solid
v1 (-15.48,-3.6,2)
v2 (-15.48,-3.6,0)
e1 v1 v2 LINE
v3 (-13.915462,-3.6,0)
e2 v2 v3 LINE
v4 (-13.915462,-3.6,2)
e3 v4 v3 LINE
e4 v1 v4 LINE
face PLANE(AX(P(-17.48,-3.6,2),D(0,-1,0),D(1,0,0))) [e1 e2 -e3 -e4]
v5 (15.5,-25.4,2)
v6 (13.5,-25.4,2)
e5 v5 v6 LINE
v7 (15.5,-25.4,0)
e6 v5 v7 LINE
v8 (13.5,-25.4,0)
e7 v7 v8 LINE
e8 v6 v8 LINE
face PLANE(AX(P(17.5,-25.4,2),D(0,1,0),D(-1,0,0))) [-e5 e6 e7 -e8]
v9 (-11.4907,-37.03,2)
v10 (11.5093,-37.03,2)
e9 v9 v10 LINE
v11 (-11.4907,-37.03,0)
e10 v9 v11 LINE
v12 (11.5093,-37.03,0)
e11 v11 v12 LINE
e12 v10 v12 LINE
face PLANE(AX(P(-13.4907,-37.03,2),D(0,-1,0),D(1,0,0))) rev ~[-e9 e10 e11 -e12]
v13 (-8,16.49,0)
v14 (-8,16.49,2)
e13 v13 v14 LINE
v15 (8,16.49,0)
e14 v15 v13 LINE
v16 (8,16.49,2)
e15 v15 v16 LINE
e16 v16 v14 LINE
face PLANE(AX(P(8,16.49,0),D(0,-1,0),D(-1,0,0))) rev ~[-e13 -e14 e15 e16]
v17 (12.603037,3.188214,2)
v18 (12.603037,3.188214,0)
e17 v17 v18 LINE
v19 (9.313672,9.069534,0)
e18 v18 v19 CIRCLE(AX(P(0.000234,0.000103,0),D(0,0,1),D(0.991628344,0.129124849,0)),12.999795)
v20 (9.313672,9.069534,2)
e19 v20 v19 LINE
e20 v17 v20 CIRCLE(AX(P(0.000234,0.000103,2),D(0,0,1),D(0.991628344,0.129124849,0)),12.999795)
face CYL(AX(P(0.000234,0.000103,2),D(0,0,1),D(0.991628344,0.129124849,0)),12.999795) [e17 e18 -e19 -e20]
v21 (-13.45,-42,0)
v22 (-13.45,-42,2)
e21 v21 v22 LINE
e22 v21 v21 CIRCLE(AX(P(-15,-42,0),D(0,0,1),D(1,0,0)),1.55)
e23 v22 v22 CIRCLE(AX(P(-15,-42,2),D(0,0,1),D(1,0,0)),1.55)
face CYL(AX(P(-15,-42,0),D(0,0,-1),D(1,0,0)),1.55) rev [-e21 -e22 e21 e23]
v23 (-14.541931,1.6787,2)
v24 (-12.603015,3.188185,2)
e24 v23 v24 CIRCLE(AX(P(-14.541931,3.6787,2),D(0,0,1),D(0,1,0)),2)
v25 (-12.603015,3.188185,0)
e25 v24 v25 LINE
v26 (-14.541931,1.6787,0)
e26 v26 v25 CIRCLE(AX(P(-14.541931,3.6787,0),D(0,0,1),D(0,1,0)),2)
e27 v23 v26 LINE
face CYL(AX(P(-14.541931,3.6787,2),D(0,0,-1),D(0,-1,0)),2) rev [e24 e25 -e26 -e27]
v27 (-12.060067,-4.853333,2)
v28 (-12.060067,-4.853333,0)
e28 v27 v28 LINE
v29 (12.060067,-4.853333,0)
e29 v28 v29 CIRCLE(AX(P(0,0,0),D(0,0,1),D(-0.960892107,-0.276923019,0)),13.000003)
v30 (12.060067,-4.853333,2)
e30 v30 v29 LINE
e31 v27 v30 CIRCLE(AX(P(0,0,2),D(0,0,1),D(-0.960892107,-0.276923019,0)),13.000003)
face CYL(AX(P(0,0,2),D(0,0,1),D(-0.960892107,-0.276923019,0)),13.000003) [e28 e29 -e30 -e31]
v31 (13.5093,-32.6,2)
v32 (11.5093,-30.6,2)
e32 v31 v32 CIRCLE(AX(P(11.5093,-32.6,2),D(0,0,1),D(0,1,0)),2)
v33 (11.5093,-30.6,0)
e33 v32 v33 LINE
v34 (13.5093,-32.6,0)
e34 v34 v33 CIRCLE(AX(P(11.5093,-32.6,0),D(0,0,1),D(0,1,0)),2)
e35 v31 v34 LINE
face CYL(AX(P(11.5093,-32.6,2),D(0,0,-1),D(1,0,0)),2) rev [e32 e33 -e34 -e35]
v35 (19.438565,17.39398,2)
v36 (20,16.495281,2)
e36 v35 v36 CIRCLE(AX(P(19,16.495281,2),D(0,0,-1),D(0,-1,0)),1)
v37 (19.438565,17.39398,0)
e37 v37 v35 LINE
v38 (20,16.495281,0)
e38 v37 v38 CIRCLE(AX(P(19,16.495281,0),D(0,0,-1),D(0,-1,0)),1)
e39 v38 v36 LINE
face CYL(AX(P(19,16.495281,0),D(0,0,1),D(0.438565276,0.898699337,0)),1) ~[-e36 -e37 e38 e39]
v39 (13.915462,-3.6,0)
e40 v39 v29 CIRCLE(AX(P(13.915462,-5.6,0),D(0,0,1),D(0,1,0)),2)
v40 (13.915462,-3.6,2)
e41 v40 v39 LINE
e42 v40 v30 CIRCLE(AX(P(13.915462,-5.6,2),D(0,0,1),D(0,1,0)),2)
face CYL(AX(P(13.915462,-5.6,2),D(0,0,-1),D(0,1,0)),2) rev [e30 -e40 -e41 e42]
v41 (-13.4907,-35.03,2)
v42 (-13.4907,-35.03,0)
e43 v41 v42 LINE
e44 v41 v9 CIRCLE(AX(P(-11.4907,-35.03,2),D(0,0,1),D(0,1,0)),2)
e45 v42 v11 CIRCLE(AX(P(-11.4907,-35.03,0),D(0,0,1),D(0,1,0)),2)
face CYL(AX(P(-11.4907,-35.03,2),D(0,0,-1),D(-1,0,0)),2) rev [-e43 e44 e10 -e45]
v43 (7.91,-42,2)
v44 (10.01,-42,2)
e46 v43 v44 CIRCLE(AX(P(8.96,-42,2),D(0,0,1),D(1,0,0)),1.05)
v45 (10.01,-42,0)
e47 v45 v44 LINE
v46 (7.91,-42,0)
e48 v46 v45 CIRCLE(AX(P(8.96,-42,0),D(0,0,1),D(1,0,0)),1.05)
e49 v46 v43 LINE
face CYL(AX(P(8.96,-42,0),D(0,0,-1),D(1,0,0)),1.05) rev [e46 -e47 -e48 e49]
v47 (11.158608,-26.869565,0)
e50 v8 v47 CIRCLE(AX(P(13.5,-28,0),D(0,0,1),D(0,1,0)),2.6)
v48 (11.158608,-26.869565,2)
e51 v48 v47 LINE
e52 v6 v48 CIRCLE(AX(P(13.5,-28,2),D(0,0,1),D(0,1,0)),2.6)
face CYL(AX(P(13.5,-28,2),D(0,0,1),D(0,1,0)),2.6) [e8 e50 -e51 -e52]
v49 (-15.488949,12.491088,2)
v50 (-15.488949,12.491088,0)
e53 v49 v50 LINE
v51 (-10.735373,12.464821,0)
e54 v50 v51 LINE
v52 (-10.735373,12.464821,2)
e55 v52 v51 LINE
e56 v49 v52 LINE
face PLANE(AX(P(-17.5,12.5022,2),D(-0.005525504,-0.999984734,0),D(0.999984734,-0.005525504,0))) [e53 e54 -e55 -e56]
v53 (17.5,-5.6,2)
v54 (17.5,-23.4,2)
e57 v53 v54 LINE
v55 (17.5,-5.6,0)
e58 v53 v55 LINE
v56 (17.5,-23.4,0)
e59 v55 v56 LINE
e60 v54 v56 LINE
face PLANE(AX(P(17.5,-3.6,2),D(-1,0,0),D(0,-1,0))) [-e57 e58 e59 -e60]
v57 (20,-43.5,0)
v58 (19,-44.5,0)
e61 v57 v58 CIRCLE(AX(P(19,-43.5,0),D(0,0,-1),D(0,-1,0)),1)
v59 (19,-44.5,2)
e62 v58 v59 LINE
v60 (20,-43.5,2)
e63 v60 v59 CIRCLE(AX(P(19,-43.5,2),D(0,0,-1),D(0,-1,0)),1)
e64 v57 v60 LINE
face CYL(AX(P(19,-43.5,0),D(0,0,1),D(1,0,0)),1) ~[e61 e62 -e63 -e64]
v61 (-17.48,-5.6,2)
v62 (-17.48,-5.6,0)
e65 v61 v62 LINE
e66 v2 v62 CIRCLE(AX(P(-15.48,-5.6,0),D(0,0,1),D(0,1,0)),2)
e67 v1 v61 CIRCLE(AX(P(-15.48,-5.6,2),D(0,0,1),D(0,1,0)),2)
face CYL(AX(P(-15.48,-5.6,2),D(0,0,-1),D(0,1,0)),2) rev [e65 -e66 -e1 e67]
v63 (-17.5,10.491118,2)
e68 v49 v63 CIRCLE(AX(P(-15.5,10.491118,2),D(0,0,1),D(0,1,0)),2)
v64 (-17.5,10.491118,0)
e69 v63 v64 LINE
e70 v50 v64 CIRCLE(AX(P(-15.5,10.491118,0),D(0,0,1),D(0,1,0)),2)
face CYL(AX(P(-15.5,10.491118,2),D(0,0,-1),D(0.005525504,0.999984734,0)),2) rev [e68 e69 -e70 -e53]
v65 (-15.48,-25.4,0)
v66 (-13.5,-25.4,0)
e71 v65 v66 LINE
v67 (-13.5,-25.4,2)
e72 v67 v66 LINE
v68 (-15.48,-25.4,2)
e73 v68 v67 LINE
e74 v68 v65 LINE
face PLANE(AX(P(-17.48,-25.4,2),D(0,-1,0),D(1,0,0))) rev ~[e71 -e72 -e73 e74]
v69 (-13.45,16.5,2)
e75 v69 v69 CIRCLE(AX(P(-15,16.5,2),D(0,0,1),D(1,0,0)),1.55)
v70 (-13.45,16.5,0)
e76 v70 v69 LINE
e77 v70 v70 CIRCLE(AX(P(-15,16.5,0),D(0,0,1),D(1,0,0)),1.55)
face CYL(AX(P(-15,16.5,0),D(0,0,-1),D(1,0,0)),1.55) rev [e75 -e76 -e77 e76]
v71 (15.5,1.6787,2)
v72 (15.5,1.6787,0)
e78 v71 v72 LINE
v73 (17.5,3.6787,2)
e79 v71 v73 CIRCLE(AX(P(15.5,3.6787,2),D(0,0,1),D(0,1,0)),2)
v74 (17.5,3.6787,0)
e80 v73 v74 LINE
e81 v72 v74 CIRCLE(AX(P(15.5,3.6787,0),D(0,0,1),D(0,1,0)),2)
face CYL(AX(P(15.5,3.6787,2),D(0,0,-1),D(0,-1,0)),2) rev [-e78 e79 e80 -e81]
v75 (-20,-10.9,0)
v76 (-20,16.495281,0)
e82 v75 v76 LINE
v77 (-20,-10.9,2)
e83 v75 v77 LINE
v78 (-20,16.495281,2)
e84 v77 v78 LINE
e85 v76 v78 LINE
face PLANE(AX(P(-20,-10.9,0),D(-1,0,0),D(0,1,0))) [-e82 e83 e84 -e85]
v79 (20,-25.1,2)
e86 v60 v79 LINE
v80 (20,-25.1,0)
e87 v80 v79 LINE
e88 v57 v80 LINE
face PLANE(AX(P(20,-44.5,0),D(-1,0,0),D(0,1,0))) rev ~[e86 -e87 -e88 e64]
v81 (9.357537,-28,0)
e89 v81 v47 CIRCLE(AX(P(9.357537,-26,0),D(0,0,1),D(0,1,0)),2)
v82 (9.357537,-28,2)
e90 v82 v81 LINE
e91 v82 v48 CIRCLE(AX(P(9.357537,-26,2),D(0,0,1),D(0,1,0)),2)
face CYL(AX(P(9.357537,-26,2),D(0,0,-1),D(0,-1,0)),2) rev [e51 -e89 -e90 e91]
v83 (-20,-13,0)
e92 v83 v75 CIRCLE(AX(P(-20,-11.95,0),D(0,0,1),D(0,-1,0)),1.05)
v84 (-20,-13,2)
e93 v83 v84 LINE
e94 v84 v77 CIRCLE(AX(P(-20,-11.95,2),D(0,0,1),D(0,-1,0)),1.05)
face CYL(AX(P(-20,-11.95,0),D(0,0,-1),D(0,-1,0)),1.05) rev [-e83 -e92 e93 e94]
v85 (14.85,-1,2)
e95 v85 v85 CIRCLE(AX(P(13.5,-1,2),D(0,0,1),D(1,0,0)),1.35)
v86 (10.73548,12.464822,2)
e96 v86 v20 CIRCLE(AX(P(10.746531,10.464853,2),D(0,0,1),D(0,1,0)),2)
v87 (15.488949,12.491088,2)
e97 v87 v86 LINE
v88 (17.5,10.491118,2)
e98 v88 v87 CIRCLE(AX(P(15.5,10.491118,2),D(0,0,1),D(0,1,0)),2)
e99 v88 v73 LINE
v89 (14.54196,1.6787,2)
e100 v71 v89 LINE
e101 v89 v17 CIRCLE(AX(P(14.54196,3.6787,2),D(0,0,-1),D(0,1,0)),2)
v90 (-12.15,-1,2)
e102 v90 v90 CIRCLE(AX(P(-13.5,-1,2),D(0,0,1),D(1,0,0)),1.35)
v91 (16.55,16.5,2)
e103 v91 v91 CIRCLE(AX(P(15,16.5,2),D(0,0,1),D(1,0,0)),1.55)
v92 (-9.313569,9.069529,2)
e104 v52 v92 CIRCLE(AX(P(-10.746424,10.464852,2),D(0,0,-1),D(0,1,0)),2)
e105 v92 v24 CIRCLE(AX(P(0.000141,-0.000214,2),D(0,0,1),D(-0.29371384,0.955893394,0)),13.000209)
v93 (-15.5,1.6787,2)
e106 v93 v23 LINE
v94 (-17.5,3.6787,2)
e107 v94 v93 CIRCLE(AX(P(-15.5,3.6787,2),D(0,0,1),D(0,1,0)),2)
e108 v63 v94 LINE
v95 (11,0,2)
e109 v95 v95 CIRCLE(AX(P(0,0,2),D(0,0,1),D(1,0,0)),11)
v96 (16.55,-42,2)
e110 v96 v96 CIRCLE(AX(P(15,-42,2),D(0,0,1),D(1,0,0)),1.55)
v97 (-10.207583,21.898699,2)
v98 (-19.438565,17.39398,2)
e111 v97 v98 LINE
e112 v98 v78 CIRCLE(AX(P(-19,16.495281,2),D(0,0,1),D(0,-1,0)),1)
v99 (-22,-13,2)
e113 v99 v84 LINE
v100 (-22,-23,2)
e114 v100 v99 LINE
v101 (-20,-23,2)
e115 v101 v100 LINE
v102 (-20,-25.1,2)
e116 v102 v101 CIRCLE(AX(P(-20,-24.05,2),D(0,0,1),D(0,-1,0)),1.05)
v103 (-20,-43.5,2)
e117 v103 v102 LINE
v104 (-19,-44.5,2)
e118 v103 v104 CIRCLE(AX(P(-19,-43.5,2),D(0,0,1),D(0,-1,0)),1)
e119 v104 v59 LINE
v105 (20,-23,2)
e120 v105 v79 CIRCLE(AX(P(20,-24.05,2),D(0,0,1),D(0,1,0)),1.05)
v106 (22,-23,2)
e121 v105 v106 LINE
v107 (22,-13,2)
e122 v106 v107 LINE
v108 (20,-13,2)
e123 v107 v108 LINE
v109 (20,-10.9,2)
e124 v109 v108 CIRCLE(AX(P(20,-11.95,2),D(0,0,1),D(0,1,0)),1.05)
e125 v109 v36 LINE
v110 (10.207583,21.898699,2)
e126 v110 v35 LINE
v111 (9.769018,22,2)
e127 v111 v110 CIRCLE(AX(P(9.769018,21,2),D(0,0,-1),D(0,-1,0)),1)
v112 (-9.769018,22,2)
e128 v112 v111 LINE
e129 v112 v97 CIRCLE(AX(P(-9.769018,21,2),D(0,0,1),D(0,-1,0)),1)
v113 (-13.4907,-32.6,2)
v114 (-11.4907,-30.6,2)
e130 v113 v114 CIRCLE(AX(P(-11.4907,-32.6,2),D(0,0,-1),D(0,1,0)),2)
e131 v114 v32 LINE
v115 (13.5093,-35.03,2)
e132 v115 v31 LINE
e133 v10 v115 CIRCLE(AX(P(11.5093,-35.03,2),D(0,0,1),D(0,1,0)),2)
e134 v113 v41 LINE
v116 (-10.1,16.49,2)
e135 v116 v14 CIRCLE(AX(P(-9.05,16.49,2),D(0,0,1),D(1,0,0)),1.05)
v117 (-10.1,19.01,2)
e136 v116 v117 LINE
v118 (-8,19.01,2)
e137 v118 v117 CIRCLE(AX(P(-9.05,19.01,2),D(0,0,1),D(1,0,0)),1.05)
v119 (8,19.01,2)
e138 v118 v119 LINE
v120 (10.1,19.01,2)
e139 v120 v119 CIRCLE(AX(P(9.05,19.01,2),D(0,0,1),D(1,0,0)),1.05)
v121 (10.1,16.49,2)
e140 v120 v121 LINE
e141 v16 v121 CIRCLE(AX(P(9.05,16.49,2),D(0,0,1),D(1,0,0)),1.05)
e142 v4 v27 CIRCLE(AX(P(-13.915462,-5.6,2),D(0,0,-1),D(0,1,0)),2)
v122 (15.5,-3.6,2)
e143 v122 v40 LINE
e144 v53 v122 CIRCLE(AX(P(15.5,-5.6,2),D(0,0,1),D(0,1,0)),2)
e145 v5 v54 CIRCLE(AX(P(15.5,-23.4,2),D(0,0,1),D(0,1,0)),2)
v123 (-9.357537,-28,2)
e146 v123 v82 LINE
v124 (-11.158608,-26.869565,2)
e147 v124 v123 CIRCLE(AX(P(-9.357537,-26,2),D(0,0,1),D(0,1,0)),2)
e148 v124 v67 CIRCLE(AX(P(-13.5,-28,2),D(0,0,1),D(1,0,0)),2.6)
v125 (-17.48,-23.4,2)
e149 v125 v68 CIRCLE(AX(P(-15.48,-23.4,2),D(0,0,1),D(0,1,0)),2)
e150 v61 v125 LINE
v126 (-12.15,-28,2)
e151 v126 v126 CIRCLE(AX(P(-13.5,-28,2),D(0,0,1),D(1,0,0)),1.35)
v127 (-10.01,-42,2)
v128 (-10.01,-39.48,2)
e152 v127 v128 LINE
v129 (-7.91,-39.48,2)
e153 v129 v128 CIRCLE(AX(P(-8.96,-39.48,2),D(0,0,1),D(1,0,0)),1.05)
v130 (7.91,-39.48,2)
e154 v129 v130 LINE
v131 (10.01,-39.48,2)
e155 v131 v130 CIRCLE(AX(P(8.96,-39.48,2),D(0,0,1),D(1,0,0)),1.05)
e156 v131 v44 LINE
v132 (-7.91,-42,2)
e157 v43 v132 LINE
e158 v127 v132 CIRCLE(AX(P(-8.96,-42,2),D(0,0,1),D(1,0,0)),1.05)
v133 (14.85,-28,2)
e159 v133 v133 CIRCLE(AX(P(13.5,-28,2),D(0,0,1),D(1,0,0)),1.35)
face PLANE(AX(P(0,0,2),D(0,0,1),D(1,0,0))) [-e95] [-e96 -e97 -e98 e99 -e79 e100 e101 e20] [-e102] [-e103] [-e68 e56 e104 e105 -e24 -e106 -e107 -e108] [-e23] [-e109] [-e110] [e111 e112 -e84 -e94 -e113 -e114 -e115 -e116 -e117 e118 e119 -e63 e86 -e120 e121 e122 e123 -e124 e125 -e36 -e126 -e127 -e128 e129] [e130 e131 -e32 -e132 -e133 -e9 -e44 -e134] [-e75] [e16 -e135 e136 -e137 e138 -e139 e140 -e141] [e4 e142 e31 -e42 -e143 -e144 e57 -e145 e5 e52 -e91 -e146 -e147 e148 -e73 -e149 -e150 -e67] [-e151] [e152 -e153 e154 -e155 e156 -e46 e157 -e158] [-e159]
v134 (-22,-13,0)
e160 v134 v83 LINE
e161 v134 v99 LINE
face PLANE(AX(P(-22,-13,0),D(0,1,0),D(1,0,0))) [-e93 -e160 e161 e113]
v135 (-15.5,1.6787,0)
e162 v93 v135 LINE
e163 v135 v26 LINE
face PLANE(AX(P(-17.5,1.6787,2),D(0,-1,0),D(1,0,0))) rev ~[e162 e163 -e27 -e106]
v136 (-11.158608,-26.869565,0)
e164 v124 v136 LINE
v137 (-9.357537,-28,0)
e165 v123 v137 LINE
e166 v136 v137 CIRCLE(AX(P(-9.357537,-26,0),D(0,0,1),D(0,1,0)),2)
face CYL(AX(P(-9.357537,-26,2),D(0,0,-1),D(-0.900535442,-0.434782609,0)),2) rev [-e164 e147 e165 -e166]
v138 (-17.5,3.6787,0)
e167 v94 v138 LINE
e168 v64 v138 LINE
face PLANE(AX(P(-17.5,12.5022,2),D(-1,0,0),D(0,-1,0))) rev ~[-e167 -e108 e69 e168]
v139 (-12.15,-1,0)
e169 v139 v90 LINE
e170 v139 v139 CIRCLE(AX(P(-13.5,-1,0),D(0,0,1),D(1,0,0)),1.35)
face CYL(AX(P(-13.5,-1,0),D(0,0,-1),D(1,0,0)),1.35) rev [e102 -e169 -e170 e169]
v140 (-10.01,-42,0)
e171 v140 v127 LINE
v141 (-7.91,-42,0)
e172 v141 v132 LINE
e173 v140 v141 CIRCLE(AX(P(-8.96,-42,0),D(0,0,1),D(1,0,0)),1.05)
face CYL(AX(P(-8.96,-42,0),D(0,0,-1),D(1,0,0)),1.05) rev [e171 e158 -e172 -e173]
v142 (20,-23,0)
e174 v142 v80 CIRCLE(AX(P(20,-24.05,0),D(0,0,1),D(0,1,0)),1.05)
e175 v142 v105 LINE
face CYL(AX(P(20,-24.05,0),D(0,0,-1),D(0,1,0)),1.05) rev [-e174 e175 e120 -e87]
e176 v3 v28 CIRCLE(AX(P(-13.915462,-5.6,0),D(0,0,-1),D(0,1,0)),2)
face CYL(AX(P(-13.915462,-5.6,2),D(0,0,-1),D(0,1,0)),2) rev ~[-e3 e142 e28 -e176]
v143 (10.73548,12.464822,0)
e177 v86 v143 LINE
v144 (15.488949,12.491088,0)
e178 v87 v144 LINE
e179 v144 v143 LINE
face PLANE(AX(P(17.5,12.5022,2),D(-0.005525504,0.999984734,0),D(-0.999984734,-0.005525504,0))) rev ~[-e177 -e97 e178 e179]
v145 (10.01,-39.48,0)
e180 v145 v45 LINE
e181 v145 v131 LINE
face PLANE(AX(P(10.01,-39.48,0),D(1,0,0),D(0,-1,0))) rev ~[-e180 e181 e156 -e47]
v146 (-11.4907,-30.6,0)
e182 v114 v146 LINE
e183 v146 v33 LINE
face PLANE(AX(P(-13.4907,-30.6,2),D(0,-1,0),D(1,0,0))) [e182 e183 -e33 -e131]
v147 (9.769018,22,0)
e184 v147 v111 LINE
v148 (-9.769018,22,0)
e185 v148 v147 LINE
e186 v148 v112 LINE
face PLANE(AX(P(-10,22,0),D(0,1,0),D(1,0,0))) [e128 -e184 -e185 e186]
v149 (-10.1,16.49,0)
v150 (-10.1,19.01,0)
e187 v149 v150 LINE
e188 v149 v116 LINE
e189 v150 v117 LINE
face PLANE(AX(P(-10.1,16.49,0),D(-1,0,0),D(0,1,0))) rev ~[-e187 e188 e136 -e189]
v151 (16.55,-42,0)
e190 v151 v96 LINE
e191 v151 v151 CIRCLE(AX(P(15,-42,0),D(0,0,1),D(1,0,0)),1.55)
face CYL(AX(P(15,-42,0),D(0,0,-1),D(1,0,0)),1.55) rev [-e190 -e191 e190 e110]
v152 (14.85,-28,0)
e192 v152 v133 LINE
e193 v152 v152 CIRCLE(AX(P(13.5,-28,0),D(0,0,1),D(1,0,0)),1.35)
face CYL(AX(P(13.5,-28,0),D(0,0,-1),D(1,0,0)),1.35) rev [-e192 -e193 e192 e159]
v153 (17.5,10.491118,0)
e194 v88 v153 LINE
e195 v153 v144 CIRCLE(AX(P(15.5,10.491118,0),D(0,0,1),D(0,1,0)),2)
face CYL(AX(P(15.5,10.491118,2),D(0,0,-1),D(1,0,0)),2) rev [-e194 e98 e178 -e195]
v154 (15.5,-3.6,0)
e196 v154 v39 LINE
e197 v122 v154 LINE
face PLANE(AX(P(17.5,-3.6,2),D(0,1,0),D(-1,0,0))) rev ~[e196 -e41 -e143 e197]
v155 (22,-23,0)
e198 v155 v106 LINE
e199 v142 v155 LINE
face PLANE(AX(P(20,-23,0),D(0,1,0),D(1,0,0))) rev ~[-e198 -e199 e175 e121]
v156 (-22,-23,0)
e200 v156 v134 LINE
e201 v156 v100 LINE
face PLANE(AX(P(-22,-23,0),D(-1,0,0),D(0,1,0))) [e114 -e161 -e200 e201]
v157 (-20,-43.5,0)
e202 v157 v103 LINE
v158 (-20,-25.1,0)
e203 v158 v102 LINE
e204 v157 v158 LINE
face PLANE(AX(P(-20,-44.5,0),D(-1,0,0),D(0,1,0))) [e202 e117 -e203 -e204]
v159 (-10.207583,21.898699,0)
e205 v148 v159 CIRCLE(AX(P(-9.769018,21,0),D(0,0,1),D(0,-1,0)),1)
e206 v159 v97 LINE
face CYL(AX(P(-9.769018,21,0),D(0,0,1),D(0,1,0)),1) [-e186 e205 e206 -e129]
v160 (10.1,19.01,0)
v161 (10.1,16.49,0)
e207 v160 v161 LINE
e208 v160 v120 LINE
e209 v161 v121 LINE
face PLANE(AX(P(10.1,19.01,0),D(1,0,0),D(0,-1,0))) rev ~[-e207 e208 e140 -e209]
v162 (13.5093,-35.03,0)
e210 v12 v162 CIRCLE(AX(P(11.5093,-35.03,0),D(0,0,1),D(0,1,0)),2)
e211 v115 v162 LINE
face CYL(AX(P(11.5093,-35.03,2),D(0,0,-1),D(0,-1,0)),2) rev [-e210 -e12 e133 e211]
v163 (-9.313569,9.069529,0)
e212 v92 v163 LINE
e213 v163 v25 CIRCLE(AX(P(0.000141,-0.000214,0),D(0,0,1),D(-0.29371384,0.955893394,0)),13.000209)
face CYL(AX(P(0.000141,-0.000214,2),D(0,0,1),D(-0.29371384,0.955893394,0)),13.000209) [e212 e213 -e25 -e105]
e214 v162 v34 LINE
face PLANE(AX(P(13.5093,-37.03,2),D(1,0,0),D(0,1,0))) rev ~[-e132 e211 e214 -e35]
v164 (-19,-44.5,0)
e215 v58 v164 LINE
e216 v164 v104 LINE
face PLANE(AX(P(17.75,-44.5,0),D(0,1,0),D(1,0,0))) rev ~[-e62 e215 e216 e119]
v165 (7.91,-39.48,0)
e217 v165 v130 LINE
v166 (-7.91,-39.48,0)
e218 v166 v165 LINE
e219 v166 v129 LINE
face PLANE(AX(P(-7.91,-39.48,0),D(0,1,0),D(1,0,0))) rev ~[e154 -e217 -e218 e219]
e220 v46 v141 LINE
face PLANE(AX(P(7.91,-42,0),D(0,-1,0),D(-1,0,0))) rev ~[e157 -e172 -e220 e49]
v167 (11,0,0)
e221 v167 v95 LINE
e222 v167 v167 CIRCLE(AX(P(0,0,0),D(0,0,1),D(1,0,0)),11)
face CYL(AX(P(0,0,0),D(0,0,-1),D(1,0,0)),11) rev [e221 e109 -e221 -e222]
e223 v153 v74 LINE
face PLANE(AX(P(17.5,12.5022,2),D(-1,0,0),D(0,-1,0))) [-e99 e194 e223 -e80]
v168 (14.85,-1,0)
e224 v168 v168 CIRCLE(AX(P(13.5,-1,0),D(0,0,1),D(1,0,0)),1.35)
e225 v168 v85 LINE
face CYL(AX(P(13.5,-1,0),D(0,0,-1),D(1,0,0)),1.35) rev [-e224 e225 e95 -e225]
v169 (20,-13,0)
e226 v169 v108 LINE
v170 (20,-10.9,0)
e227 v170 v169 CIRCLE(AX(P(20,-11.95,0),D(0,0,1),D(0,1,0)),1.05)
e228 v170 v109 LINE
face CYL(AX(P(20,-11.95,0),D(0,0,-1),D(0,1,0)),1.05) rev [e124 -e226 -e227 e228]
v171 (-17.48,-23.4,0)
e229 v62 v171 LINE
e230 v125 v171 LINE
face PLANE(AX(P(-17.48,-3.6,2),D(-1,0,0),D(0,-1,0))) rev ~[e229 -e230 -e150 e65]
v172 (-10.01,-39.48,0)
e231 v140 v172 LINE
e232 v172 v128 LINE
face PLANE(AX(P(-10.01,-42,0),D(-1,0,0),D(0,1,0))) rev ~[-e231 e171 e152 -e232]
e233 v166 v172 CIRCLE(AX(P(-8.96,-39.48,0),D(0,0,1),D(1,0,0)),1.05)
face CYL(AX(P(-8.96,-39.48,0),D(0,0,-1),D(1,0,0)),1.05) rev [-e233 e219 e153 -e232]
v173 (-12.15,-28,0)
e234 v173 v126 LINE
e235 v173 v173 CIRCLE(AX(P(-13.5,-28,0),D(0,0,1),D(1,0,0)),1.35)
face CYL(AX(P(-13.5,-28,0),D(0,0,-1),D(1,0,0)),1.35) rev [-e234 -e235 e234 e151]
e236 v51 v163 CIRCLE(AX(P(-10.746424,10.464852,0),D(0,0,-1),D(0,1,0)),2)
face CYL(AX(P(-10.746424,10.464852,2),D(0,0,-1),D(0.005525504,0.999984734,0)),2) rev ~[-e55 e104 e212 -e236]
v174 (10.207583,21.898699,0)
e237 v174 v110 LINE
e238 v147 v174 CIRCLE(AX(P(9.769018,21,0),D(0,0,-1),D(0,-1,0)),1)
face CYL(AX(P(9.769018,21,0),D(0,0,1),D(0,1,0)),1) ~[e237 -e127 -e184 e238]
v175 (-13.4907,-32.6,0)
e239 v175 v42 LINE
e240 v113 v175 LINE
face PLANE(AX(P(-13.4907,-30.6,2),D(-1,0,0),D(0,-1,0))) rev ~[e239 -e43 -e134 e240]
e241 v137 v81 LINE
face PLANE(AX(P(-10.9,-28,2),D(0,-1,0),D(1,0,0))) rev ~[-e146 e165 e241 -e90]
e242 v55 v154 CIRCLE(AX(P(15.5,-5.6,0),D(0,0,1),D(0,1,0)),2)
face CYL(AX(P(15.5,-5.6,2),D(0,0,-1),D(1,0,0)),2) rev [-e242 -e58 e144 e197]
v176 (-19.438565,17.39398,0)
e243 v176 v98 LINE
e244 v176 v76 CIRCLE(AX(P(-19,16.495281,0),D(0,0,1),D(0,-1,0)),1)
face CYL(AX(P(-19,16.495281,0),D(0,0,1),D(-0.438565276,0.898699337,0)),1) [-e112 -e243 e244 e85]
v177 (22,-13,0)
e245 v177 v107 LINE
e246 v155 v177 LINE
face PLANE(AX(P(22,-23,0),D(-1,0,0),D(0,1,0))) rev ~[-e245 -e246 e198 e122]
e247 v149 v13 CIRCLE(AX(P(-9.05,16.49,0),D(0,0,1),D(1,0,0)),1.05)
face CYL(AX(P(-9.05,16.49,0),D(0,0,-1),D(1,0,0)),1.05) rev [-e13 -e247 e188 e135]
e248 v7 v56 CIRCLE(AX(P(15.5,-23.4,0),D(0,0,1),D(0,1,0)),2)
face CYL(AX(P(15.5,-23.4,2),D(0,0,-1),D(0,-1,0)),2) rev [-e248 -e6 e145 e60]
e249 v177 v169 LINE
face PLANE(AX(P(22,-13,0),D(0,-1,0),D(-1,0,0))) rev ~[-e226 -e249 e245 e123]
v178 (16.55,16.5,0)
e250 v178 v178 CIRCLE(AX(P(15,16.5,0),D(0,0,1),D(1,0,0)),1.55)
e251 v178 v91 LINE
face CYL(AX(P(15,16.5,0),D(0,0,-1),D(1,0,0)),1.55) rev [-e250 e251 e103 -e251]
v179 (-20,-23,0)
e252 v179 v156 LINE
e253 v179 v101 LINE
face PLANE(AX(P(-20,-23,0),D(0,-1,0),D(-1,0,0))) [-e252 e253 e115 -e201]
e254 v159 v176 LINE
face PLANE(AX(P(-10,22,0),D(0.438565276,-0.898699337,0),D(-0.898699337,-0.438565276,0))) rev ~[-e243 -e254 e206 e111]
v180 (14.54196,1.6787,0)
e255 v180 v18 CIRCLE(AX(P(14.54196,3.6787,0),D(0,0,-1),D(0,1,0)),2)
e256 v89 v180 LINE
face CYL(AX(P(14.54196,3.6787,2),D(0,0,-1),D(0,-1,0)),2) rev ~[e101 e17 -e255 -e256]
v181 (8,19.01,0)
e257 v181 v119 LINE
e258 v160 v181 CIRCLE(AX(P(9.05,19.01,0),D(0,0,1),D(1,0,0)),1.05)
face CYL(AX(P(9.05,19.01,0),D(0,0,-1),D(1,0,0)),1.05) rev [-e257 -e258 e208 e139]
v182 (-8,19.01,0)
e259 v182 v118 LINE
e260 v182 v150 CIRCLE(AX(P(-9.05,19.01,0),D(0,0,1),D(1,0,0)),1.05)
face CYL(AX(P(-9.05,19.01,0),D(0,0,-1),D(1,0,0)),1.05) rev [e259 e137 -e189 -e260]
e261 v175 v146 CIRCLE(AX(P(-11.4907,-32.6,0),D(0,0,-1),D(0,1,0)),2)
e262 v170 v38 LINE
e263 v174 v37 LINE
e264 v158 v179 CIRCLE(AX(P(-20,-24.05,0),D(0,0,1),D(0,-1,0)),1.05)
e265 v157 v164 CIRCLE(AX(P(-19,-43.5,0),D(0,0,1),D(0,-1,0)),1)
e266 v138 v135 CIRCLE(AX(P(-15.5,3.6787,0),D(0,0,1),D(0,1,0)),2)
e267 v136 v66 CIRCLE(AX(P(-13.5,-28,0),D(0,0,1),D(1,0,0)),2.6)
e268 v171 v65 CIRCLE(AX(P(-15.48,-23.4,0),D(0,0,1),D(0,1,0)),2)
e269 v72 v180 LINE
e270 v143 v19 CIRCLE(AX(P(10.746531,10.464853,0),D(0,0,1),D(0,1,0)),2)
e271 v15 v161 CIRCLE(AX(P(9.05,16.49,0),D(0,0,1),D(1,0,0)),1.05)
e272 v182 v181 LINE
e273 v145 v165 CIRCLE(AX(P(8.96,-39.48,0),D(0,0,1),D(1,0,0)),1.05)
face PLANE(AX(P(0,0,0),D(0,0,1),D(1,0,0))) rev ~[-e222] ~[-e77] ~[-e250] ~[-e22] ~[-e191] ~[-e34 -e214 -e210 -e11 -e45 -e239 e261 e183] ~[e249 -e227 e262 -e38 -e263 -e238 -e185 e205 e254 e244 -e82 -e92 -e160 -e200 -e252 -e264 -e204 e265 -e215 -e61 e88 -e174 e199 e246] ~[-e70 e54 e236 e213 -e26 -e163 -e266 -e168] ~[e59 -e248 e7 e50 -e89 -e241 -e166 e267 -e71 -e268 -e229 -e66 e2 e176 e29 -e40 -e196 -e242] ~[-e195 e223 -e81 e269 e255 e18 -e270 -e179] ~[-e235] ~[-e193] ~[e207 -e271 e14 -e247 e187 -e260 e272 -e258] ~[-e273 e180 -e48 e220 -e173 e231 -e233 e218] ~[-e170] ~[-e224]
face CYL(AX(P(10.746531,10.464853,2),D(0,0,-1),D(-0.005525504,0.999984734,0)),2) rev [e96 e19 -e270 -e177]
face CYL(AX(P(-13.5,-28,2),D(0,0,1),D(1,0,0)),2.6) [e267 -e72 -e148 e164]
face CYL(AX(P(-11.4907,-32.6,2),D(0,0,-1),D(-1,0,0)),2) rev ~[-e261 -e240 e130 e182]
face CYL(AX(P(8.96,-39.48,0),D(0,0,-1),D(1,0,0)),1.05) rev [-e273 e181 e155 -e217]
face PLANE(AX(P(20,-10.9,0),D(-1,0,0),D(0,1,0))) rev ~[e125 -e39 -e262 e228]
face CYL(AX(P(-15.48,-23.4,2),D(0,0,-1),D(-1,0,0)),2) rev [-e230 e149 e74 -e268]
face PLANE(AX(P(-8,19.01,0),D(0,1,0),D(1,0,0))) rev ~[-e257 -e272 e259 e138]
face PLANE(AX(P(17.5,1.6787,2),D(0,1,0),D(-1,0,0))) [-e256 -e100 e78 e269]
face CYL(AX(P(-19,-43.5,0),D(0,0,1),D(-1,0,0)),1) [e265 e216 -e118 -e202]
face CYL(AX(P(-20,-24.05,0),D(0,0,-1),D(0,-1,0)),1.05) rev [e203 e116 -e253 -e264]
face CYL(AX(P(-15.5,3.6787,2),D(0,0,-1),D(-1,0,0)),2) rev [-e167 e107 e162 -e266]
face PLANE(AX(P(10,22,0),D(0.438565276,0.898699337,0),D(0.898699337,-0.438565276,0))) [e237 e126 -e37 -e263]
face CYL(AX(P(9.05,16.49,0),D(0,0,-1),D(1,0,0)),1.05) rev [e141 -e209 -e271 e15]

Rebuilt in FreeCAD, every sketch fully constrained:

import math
import FreeCAD as App
import Part
import Sketcher
from FreeCAD import Vector


def edges_at(feature, points):
    """Names of the edges that pass closest to the given points."""
    edges = feature.Shape.Edges
    near = lambda p: min(range(len(edges)), key=lambda i: edges[i].distToShape(Part.Vertex(*p))[0])
    return sorted({f"Edge{near(p) + 1}" for p in points})


def add_polygon(sketch, points):
    """Adds a closed chain of lines whose ends are joined by coincident constraints."""
    first, n = sketch.GeometryCount, len(points)
    for a, b in zip(points, points[1:] + points[:1]):
        sketch.addGeometry(Part.LineSegment(App.Vector(*a, 0), App.Vector(*b, 0)), False)
    for i in range(n):
        sketch.addConstraint(Sketcher.Constraint("Coincident", first + i, 2, first + (i + 1) % n, 1))

doc = App.newDocument("Part")
body = doc.addObject("PartDesign::Body", "Body")

sketch1 = body.newObject("Sketcher::SketchObject", "Sketch")
sketch1.AttachmentSupport = (doc.getObject("XY_Plane"), [""])
sketch1.MapMode = "FlatFace"
sketch1.addGeometry(Part.LineSegment(Vector(10, 22, 0), Vector(-10, 22, 0)), False)
sketch1.addGeometry(Part.LineSegment(Vector(-10, 22, 0), Vector(-20, 17.12, 0)), False)
sketch1.addGeometry(Part.LineSegment(Vector(-20, 17.12, 0), Vector(-20, -10.9, 0)), False)
sketch1.addGeometry(Part.ArcOfCircle(Part.Circle(Vector(-20, -11.95, 0), Vector(0, 0, 1), 1.05), math.radians(-90), math.radians(90)), False)
sketch1.addGeometry(Part.LineSegment(Vector(-20, -13, 0), Vector(-22, -13, 0)), False)
sketch1.addGeometry(Part.LineSegment(Vector(-22, -13, 0), Vector(-22, -23, 0)), False)
sketch1.addGeometry(Part.LineSegment(Vector(-22, -23, 0), Vector(-20, -23, 0)), False)
sketch1.addGeometry(Part.ArcOfCircle(Part.Circle(Vector(-20, -24.05, 0), Vector(0, 0, 1), 1.05), math.radians(-90), math.radians(90)), False)
sketch1.addGeometry(Part.LineSegment(Vector(-20, -25.1, 0), Vector(-20, -44.5, 0)), False)
sketch1.addGeometry(Part.LineSegment(Vector(-20, -44.5, 0), Vector(20, -44.5, 0)), False)
sketch1.addGeometry(Part.LineSegment(Vector(20, -44.5, 0), Vector(20, -25.1, 0)), False)
sketch1.addGeometry(Part.ArcOfCircle(Part.Circle(Vector(20, -24.05, 0), Vector(0, 0, 1), 1.05), math.radians(90), math.radians(270)), False)
sketch1.addGeometry(Part.LineSegment(Vector(20, -23, 0), Vector(22, -23, 0)), False)
sketch1.addGeometry(Part.LineSegment(Vector(22, -23, 0), Vector(22, -13, 0)), False)
sketch1.addGeometry(Part.LineSegment(Vector(22, -13, 0), Vector(20, -13, 0)), False)
sketch1.addGeometry(Part.ArcOfCircle(Part.Circle(Vector(20, -11.95, 0), Vector(0, 0, 1), 1.05), math.radians(90), math.radians(270)), False)
sketch1.addGeometry(Part.LineSegment(Vector(20, -10.9, 0), Vector(20, 17.12, 0)), False)
sketch1.addGeometry(Part.LineSegment(Vector(20, 17.12, 0), Vector(10, 22, 0)), False)
sketch1.addGeometry(Part.Circle(Vector(-15, -42, 0), Vector(0, 0, 1), 1.55), False)
sketch1.addGeometry(Part.Circle(Vector(-13.5, -28, 0), Vector(0, 0, 1), 1.35), False)
sketch1.addGeometry(Part.LineSegment(Vector(7.91, -42, 0), Vector(-7.91, -42, 0)), False)
sketch1.addGeometry(Part.ArcOfCircle(Part.Circle(Vector(-8.96, -42, 0), Vector(0, 0, 1), 1.05), math.radians(180), math.radians(360)), False)
sketch1.addGeometry(Part.LineSegment(Vector(-10.01, -42, 0), Vector(-10.01, -39.48, 0)), False)
sketch1.addGeometry(Part.ArcOfCircle(Part.Circle(Vector(-8.96, -39.48, 0), Vector(0, 0, 1), 1.05), math.radians(0), math.radians(180)), False)
sketch1.addGeometry(Part.LineSegment(Vector(-7.91, -39.48, 0), Vector(7.91, -39.48, 0)), False)
sketch1.addGeometry(Part.ArcOfCircle(Part.Circle(Vector(8.96, -39.48, 0), Vector(0, 0, 1), 1.05), math.radians(0), math.radians(180)), False)
sketch1.addGeometry(Part.LineSegment(Vector(10.01, -39.48, 0), Vector(10.01, -42, 0)), False)
sketch1.addGeometry(Part.ArcOfCircle(Part.Circle(Vector(8.96, -42, 0), Vector(0, 0, 1), 1.05), math.radians(180), math.radians(360)), False)
sketch1.addGeometry(Part.Circle(Vector(15, -42, 0), Vector(0, 0, 1), 1.55), False)
sketch1.addGeometry(Part.Circle(Vector(13.5, -28, 0), Vector(0, 0, 1), 1.35), False)
sketch1.addGeometry(Part.Circle(Vector(-13.5, -1, 0), Vector(0, 0, 1), 1.35), False)
sketch1.addGeometry(Part.Circle(Vector(-15, 16.5, 0), Vector(0, 0, 1), 1.55), False)
sketch1.addGeometry(Part.Circle(Vector(0, 0, 0), Vector(0, 0, 1), 11), False)
sketch1.addGeometry(Part.Circle(Vector(13.5, -1, 0), Vector(0, 0, 1), 1.35), False)
sketch1.addGeometry(Part.LineSegment(Vector(-10.1, 16.49, 0), Vector(-10.1, 19.01, 0)), False)
sketch1.addGeometry(Part.ArcOfCircle(Part.Circle(Vector(-9.05, 19.01, 0), Vector(0, 0, 1), 1.05), math.radians(0), math.radians(180)), False)
sketch1.addGeometry(Part.LineSegment(Vector(-8, 19.01, 0), Vector(8, 19.01, 0)), False)
sketch1.addGeometry(Part.ArcOfCircle(Part.Circle(Vector(9.05, 19.01, 0), Vector(0, 0, 1), 1.05), math.radians(0), math.radians(180)), False)
sketch1.addGeometry(Part.LineSegment(Vector(10.1, 19.01, 0), Vector(10.1, 16.49, 0)), False)
sketch1.addGeometry(Part.ArcOfCircle(Part.Circle(Vector(9.05, 16.49, 0), Vector(0, 0, 1), 1.05), math.radians(180), math.radians(360)), False)
sketch1.addGeometry(Part.LineSegment(Vector(8, 16.49, 0), Vector(-8, 16.49, 0)), False)
sketch1.addGeometry(Part.ArcOfCircle(Part.Circle(Vector(-9.05, 16.49, 0), Vector(0, 0, 1), 1.05), math.radians(180), math.radians(360)), False)
sketch1.addGeometry(Part.Circle(Vector(15, 16.5, 0), Vector(0, 0, 1), 1.55), False)
sketch1.addConstraint(Sketcher.Constraint("Coincident", 0, 2, 1, 1))
sketch1.addConstraint(Sketcher.Constraint("Coincident", 1, 2, 2, 1))
sketch1.addConstraint(Sketcher.Constraint("Coincident", 2, 2, 3, 2))
sketch1.addConstraint(Sketcher.Constraint("Tangent", 3, 1, 4, 1))
sketch1.addConstraint(Sketcher.Constraint("Coincident", 4, 2, 5, 1))
sketch1.addConstraint(Sketcher.Constraint("Coincident", 5, 2, 6, 1))
sketch1.addConstraint(Sketcher.Constraint("Tangent", 6, 2, 7, 2))
sketch1.addConstraint(Sketcher.Constraint("Coincident", 7, 1, 8, 1))
sketch1.addConstraint(Sketcher.Constraint("Coincident", 8, 2, 9, 1))
sketch1.addConstraint(Sketcher.Constraint("Coincident", 9, 2, 10, 1))
sketch1.addConstraint(Sketcher.Constraint("Coincident", 10, 2, 11, 2))
sketch1.addConstraint(Sketcher.Constraint("Tangent", 11, 1, 12, 1))
sketch1.addConstraint(Sketcher.Constraint("Coincident", 12, 2, 13, 1))
sketch1.addConstraint(Sketcher.Constraint("Coincident", 13, 2, 14, 1))
sketch1.addConstraint(Sketcher.Constraint("Tangent", 14, 2, 15, 2))
sketch1.addConstraint(Sketcher.Constraint("Coincident", 15, 1, 16, 1))
sketch1.addConstraint(Sketcher.Constraint("Coincident", 16, 2, 17, 1))
sketch1.addConstraint(Sketcher.Constraint("Coincident", 17, 2, 0, 1))
sketch1.addConstraint(Sketcher.Constraint("Coincident", 20, 2, 21, 2))
sketch1.addConstraint(Sketcher.Constraint("Tangent", 21, 1, 22, 1))
sketch1.addConstraint(Sketcher.Constraint("Tangent", 22, 2, 23, 2))
sketch1.addConstraint(Sketcher.Constraint("Coincident", 23, 1, 24, 1))
sketch1.addConstraint(Sketcher.Constraint("Coincident", 24, 2, 25, 2))
sketch1.addConstraint(Sketcher.Constraint("Tangent", 25, 1, 26, 1))
sketch1.addConstraint(Sketcher.Constraint("Tangent", 26, 2, 27, 2))
sketch1.addConstraint(Sketcher.Constraint("Coincident", 27, 1, 20, 1))
sketch1.addConstraint(Sketcher.Constraint("Tangent", 34, 2, 35, 2))
sketch1.addConstraint(Sketcher.Constraint("Coincident", 35, 1, 36, 1))
sketch1.addConstraint(Sketcher.Constraint("Coincident", 36, 2, 37, 2))
sketch1.addConstraint(Sketcher.Constraint("Tangent", 37, 1, 38, 1))
sketch1.addConstraint(Sketcher.Constraint("Tangent", 38, 2, 39, 2))
sketch1.addConstraint(Sketcher.Constraint("Coincident", 39, 1, 40, 1))
sketch1.addConstraint(Sketcher.Constraint("Coincident", 40, 2, 41, 2))
sketch1.addConstraint(Sketcher.Constraint("Tangent", 41, 1, 34, 1))
sketch1.addConstraint(Sketcher.Constraint("Horizontal", 0))
sketch1.addConstraint(Sketcher.Constraint("Vertical", 2))
sketch1.addConstraint(Sketcher.Constraint("Horizontal", 4))
sketch1.addConstraint(Sketcher.Constraint("Vertical", 5))
sketch1.addConstraint(Sketcher.Constraint("Horizontal", 6))
sketch1.addConstraint(Sketcher.Constraint("Vertical", 8))
sketch1.addConstraint(Sketcher.Constraint("Horizontal", 9))
sketch1.addConstraint(Sketcher.Constraint("Vertical", 10))
sketch1.addConstraint(Sketcher.Constraint("Horizontal", 12))
sketch1.addConstraint(Sketcher.Constraint("Vertical", 13))
sketch1.addConstraint(Sketcher.Constraint("Horizontal", 14))
sketch1.addConstraint(Sketcher.Constraint("Vertical", 16))
sketch1.addConstraint(Sketcher.Constraint("Horizontal", 20))
sketch1.addConstraint(Sketcher.Constraint("Vertical", 22))
sketch1.addConstraint(Sketcher.Constraint("Horizontal", 24))
sketch1.addConstraint(Sketcher.Constraint("Vertical", 26))
sketch1.addConstraint(Sketcher.Constraint("Vertical", 34))
sketch1.addConstraint(Sketcher.Constraint("Horizontal", 36))
sketch1.addConstraint(Sketcher.Constraint("Vertical", 38))
sketch1.addConstraint(Sketcher.Constraint("Horizontal", 40))
sketch1.addConstraint(Sketcher.Constraint("Coincident", 32, 3, -1, 1))
sketch1.addConstraint(Sketcher.Constraint("Equal", 3, 7))
sketch1.addConstraint(Sketcher.Constraint("Equal", 7, 11))
sketch1.addConstraint(Sketcher.Constraint("Equal", 11, 15))
sketch1.addConstraint(Sketcher.Constraint("Equal", 15, 21))
sketch1.addConstraint(Sketcher.Constraint("Equal", 21, 23))
sketch1.addConstraint(Sketcher.Constraint("Equal", 23, 25))
sketch1.addConstraint(Sketcher.Constraint("Equal", 25, 27))
sketch1.addConstraint(Sketcher.Constraint("Equal", 18, 28))
sketch1.addConstraint(Sketcher.Constraint("Equal", 19, 29))
sketch1.addConstraint(Sketcher.Constraint("Equal", 29, 30))
sketch1.addConstraint(Sketcher.Constraint("Equal", 28, 31))
sketch1.addConstraint(Sketcher.Constraint("Equal", 30, 33))
sketch1.addConstraint(Sketcher.Constraint("Equal", 27, 35))
sketch1.addConstraint(Sketcher.Constraint("Equal", 35, 37))
sketch1.addConstraint(Sketcher.Constraint("Equal", 37, 39))
sketch1.addConstraint(Sketcher.Constraint("Equal", 39, 41))
sketch1.addConstraint(Sketcher.Constraint("Equal", 31, 42))
sketch1.addConstraint(Sketcher.Constraint("Symmetric", 7, 3, 11, 3, -2))
sketch1.addConstraint(Sketcher.Constraint("Symmetric", 3, 3, 15, 3, -2))
sketch1.addConstraint(Sketcher.Constraint("Symmetric", 23, 3, 25, 3, -2))
sketch1.addConstraint(Sketcher.Constraint("Symmetric", 18, 3, 28, 3, -2))
sketch1.addConstraint(Sketcher.Constraint("Symmetric", 19, 3, 29, 3, -2))
sketch1.addConstraint(Sketcher.Constraint("Symmetric", 30, 3, 33, 3, -2))
sketch1.addConstraint(Sketcher.Constraint("Symmetric", 35, 3, 37, 3, -2))
sketch1.addConstraint(Sketcher.Constraint("Symmetric", 31, 3, 42, 3, -2))
sketch1.addConstraint(Sketcher.Constraint("Symmetric", 1, 2, 16, 2, -2))
sketch1.addConstraint(Sketcher.Constraint("Horizontal", 18, 3, 21, 3))
sketch1.addConstraint(Sketcher.Constraint("Horizontal", 21, 3, 27, 3))
sketch1.addConstraint(Sketcher.Constraint("Horizontal", 39, 3, 41, 3))
sketch1.addConstraint(Sketcher.Constraint("Horizontal", 28, 3, 20, 2))
sketch1.addConstraint(Sketcher.Constraint("Horizontal", 22, 2, 23, 1))
sketch1.addConstraint(Sketcher.Constraint("Horizontal", 34, 2, 35, 1))
sketch1.addConstraint(Sketcher.Constraint("Horizontal", 38, 2, 39, 1))
sketch1.addConstraint(Sketcher.Constraint("Vertical", 3, 3, 7, 3))
sketch1.addConstraint(Sketcher.Constraint("Vertical", 19, 3, 30, 3))
sketch1.addConstraint(Sketcher.Constraint("Vertical", 18, 3, 31, 3))
sketch1.addConstraint(Sketcher.Constraint("Vertical", 7, 3, 1, 2))
sketch1.addConstraint(Sketcher.Constraint("Vertical", 6, 2, 7, 1))
sketch1.addConstraint(Sketcher.Constraint("Vertical", 15, 3, 9, 2))
sketch1.addConstraint(Sketcher.Constraint("Equal", 6, 12))
sketch1.addConstraint(Sketcher.Constraint("Equal", 26, 34))
sketch1.addConstraint(Sketcher.Constraint("Equal", 1, 17))
sketch1.addConstraint(Sketcher.Constraint("Diameter", 32, 22.0))
sketch1.addConstraint(Sketcher.Constraint("Diameter", 18, 3.1))
sketch1.addConstraint(Sketcher.Constraint("Diameter", 19, 2.7))
sketch1.addConstraint(Sketcher.Constraint("DistanceX", 0, 2, 0, 1, 20.0))
sketch1.addConstraint(Sketcher.Constraint("DistanceX", 4, 2, 4, 1, 2.0))
sketch1.addConstraint(Sketcher.Constraint("DistanceX", 9, 1, 9, 2, 40.0))
sketch1.addConstraint(Sketcher.Constraint("DistanceY", 5, 2, 5, 1, 10.0))
sketch1.addConstraint(Sketcher.Constraint("Radius", 3, 1.05))
sketch1.addConstraint(Sketcher.Constraint("DistanceX", 18, 3, -1, 1, 15.0))
sketch1.addConstraint(Sketcher.Constraint("DistanceY", 30, 3, -1, 1, 1.0))
sketch1.addConstraint(Sketcher.Constraint("DistanceY", -1, 1, 0, 2, 22.0))
sketch1.addConstraint(Sketcher.Constraint("DistanceY", 19, 3, 30, 3, 27.0))
sketch1.addConstraint(Sketcher.Constraint("DistanceX", 30, 3, 29, 3, 27.0))
sketch1.addConstraint(Sketcher.Constraint("DistanceY", 19, 3, 3, 1, 15.0))
sketch1.addConstraint(Sketcher.Constraint("DistanceX", 0, 2, 35, 1, 2.0))
sketch1.addConstraint(Sketcher.Constraint("DistanceY", 22, 1, 22, 2, 2.52))
sketch1.addConstraint(Sketcher.Constraint("DistanceY", -1, 1, 31, 3, 16.5))
sketch1.addConstraint(Sketcher.Constraint("DistanceY", 8, 2, -1, 1, 44.5))
sketch1.addConstraint(Sketcher.Constraint("DistanceY", 23, 3, -1, 1, 39.48))
sketch1.addConstraint(Sketcher.Constraint("DistanceY", 41, 3, 0, 2, 5.51))
sketch1.addConstraint(Sketcher.Constraint("DistanceX", 20, 2, 20, 1, 15.82))
sketch1.addConstraint(Sketcher.Constraint("DistanceY", 2, 2, 2, 1, 28.02))
pad1 = body.newObject("PartDesign::Pad", "Pad")
pad1.Profile = sketch1
pad1.Length = 2

sketch2 = body.newObject("Sketcher::SketchObject", "Sketch001")
sketch2.AttachmentSupport = (doc.getObject("XY_Plane"), [""])
sketch2.MapMode = "FlatFace"
sketch2.AttachmentOffset = App.Placement(Vector(0, 0, 2), App.Rotation())
sketch2.addGeometry(Part.ArcOfCircle(Part.Circle(Vector(0, 0, 0), Vector(0, 0, 1), 13.000041), math.radians(107.080111), math.radians(172.580658)), False)
sketch2.addGeometry(Part.LineSegment(Vector(-3.8182, 12.4266, 0), Vector(-17.5, 12.5022, 0)), False)
sketch2.addGeometry(Part.LineSegment(Vector(-17.5, 12.5022, 0), Vector(-17.5, 1.6787, 0)), False)
sketch2.addGeometry(Part.LineSegment(Vector(-17.5, 1.6787, 0), Vector(-12.8912, 1.6787, 0)), False)
sketch2.addGeometry(Part.ArcOfCircle(Part.Circle(Vector(0, 0, 0), Vector(0, 0, 1), 12.999963), math.radians(7.419342), math.radians(72.919889)), False)
sketch2.addGeometry(Part.LineSegment(Vector(12.8912, 1.6787, 0), Vector(17.5, 1.6787, 0)), False)
sketch2.addGeometry(Part.LineSegment(Vector(17.5, 1.6787, 0), Vector(17.5, 12.5022, 0)), False)
sketch2.addGeometry(Part.LineSegment(Vector(17.5, 12.5022, 0), Vector(3.8182, 12.4266, 0)), False)
sketch2.addGeometry(Part.ArcOfCircle(Part.Circle(Vector(0, 0, 0), Vector(0, 0, 1), 13.000003), math.radians(-163.923354), math.radians(-16.076646)), False)
sketch2.addGeometry(Part.LineSegment(Vector(-12.4916, -3.6, 0), Vector(-17.48, -3.6, 0)), False)
sketch2.addGeometry(Part.LineSegment(Vector(-17.48, -3.6, 0), Vector(-17.48, -25.4, 0)), False)
sketch2.addGeometry(Part.LineSegment(Vector(-17.48, -25.4, 0), Vector(-13.5, -25.4, 0)), False)
sketch2.addGeometry(Part.ArcOfCircle(Part.Circle(Vector(-13.5, -28, 0), Vector(0, 0, 1), 2.6), math.radians(0), math.radians(90)), False)
sketch2.addGeometry(Part.LineSegment(Vector(-10.9, -28, 0), Vector(10.9, -28, 0)), False)
sketch2.addGeometry(Part.ArcOfCircle(Part.Circle(Vector(13.5, -28, 0), Vector(0, 0, 1), 2.6), math.radians(90), math.radians(180)), False)
sketch2.addGeometry(Part.LineSegment(Vector(13.5, -25.4, 0), Vector(17.5, -25.4, 0)), False)
sketch2.addGeometry(Part.LineSegment(Vector(17.5, -25.4, 0), Vector(17.5, -3.6, 0)), False)
sketch2.addGeometry(Part.LineSegment(Vector(17.5, -3.6, 0), Vector(12.4916, -3.6, 0)), False)
add_polygon(sketch2, [(13.5093, -30.6), (-13.4907, -30.6), (-13.4907, -37.03), (13.5093, -37.03)])
sketch2.addConstraint(Sketcher.Constraint("Coincident", 0, 1, 1, 1))
sketch2.addConstraint(Sketcher.Constraint("Coincident", 1, 2, 2, 1))
sketch2.addConstraint(Sketcher.Constraint("Coincident", 2, 2, 3, 1))
sketch2.addConstraint(Sketcher.Constraint("Coincident", 3, 2, 0, 2))
sketch2.addConstraint(Sketcher.Constraint("Coincident", 4, 1, 5, 1))
sketch2.addConstraint(Sketcher.Constraint("Coincident", 5, 2, 6, 1))
sketch2.addConstraint(Sketcher.Constraint("Coincident", 6, 2, 7, 1))
sketch2.addConstraint(Sketcher.Constraint("Coincident", 7, 2, 4, 2))
sketch2.addConstraint(Sketcher.Constraint("Coincident", 8, 1, 9, 1))
sketch2.addConstraint(Sketcher.Constraint("Coincident", 9, 2, 10, 1))
sketch2.addConstraint(Sketcher.Constraint("Coincident", 10, 2, 11, 1))
sketch2.addConstraint(Sketcher.Constraint("Tangent", 11, 2, 12, 2))
sketch2.addConstraint(Sketcher.Constraint("Coincident", 12, 1, 13, 1))
sketch2.addConstraint(Sketcher.Constraint("Coincident", 13, 2, 14, 2))
sketch2.addConstraint(Sketcher.Constraint("Tangent", 14, 1, 15, 1))
sketch2.addConstraint(Sketcher.Constraint("Coincident", 15, 2, 16, 1))
sketch2.addConstraint(Sketcher.Constraint("Coincident", 16, 2, 17, 1))
sketch2.addConstraint(Sketcher.Constraint("Coincident", 17, 2, 8, 2))
sketch2.addConstraint(Sketcher.Constraint("Vertical", 2))
sketch2.addConstraint(Sketcher.Constraint("Horizontal", 3))
sketch2.addConstraint(Sketcher.Constraint("Horizontal", 5))
sketch2.addConstraint(Sketcher.Constraint("Vertical", 6))
sketch2.addConstraint(Sketcher.Constraint("Horizontal", 9))
sketch2.addConstraint(Sketcher.Constraint("Vertical", 10))
sketch2.addConstraint(Sketcher.Constraint("Horizontal", 11))
sketch2.addConstraint(Sketcher.Constraint("Horizontal", 13))
sketch2.addConstraint(Sketcher.Constraint("Horizontal", 15))
sketch2.addConstraint(Sketcher.Constraint("Vertical", 16))
sketch2.addConstraint(Sketcher.Constraint("Horizontal", 17))
sketch2.addConstraint(Sketcher.Constraint("Horizontal", 18))
sketch2.addConstraint(Sketcher.Constraint("Vertical", 19))
sketch2.addConstraint(Sketcher.Constraint("Horizontal", 20))
sketch2.addConstraint(Sketcher.Constraint("Vertical", 21))
sketch2.addConstraint(Sketcher.Constraint("Coincident", 0, 3, -1, 1))
sketch2.addConstraint(Sketcher.Constraint("Coincident", 4, 3, -1, 1))
sketch2.addConstraint(Sketcher.Constraint("Coincident", 8, 3, -1, 1))
sketch2.addConstraint(Sketcher.Constraint("Equal", 0, 4))
sketch2.addConstraint(Sketcher.Constraint("Equal", 4, 8))
sketch2.addConstraint(Sketcher.Constraint("Equal", 12, 14))
sketch2.addConstraint(Sketcher.Constraint("Symmetric", 12, 3, 14, 3, -2))
sketch2.addConstraint(Sketcher.Constraint("Symmetric", 2, 2, 5, 2, -2))
sketch2.addConstraint(Sketcher.Constraint("Horizontal", 1, 2, 6, 2))
sketch2.addConstraint(Sketcher.Constraint("Horizontal", 0, 1, 7, 2))
sketch2.addConstraint(Sketcher.Constraint("Horizontal", 14, 3, 12, 1))
sketch2.addConstraint(Sketcher.Constraint("Horizontal", 9, 2, 16, 2))
sketch2.addConstraint(Sketcher.Constraint("Vertical", 6, 2, 15, 2))
sketch2.addConstraint(Sketcher.Constraint("Equal", 13, 10))
sketch2.addConstraint(Sketcher.Constraint("Radius", 0, 13.0))
sketch2.addConstraint(Sketcher.Constraint("Radius", 12, 2.6))
sketch2.addConstraint(Sketcher.Constraint("DistanceX", 13, 1, 13, 2, 21.8))
sketch2.addConstraint(Sketcher.Constraint("DistanceY", 18, 2, 11, 2, 5.2))
sketch2.addConstraint(Sketcher.Constraint("DistanceX", 15, 1, 15, 2, 4.0))
sketch2.addConstraint(Sketcher.Constraint("DistanceX", 18, 2, 18, 1, 27.0))
sketch2.addConstraint(Sketcher.Constraint("DistanceY", 2, 2, 2, 1, 10.8235))
sketch2.addConstraint(Sketcher.Constraint("DistanceY", 12, 3, -1, 1, 28.0))
sketch2.addConstraint(Sketcher.Constraint("DistanceX", 11, 1, 11, 2, 3.98))
sketch2.addConstraint(Sketcher.Constraint("DistanceY", 19, 2, 19, 1, 6.43))
sketch2.addConstraint(Sketcher.Constraint("Distance", 1, 13.682))
sketch2.addConstraint(Sketcher.Constraint("DistanceX", 3, 1, 3, 2, 4.6088))
sketch2.addConstraint(Sketcher.Constraint("DistanceX", 18, 2, -1, 1, 13.4907))
pocket1 = body.newObject("PartDesign::Pocket", "Pocket")
pocket1.Profile = sketch2
pocket1.Length = 2
doc.recompute()

fillet = body.newObject("PartDesign::Fillet", "Fillet")
fillet.Base = (pocket1, edges_at(pocket1, [
    (-17.5, 12.502, 1),
    (-3.818, 12.427, 1),
    (17.5, 12.502, 1),
    (-12.891, 1.679, 1),
    (17.5, 1.679, 1),
    (3.818, 12.427, 1),
    (-17.5, 1.679, 1),
    (12.891, 1.679, 1),
    (17.5, -3.6, 1),
    (12.492, -3.6, 1),
    (-12.492, -3.6, 1),
    (-17.48, -3.6, 1),
    (-17.48, -25.4, 1),
    (-10.9, -28, 1),
    (17.5, -25.4, 1),
    (10.9, -28, 1),
    (13.509, -37.03, 1),
    (-13.491, -37.03, 1),
    (-13.491, -30.6, 1),
    (13.509, -30.6, 1),
]))
fillet.Radius = 2
doc.recompute()

fillet2 = body.newObject("PartDesign::Fillet", "Fillet001")
fillet2.Base = (fillet, edges_at(fillet, [
    (-20, -44.5, 1),
    (20, -44.5, 1),
    (-20, 17.12, 1),
    (-10, 22, 1),
    (10, 22, 1),
    (20, 17.12, 1),
]))
fillet2.Radius = 1

doc.recompute()
